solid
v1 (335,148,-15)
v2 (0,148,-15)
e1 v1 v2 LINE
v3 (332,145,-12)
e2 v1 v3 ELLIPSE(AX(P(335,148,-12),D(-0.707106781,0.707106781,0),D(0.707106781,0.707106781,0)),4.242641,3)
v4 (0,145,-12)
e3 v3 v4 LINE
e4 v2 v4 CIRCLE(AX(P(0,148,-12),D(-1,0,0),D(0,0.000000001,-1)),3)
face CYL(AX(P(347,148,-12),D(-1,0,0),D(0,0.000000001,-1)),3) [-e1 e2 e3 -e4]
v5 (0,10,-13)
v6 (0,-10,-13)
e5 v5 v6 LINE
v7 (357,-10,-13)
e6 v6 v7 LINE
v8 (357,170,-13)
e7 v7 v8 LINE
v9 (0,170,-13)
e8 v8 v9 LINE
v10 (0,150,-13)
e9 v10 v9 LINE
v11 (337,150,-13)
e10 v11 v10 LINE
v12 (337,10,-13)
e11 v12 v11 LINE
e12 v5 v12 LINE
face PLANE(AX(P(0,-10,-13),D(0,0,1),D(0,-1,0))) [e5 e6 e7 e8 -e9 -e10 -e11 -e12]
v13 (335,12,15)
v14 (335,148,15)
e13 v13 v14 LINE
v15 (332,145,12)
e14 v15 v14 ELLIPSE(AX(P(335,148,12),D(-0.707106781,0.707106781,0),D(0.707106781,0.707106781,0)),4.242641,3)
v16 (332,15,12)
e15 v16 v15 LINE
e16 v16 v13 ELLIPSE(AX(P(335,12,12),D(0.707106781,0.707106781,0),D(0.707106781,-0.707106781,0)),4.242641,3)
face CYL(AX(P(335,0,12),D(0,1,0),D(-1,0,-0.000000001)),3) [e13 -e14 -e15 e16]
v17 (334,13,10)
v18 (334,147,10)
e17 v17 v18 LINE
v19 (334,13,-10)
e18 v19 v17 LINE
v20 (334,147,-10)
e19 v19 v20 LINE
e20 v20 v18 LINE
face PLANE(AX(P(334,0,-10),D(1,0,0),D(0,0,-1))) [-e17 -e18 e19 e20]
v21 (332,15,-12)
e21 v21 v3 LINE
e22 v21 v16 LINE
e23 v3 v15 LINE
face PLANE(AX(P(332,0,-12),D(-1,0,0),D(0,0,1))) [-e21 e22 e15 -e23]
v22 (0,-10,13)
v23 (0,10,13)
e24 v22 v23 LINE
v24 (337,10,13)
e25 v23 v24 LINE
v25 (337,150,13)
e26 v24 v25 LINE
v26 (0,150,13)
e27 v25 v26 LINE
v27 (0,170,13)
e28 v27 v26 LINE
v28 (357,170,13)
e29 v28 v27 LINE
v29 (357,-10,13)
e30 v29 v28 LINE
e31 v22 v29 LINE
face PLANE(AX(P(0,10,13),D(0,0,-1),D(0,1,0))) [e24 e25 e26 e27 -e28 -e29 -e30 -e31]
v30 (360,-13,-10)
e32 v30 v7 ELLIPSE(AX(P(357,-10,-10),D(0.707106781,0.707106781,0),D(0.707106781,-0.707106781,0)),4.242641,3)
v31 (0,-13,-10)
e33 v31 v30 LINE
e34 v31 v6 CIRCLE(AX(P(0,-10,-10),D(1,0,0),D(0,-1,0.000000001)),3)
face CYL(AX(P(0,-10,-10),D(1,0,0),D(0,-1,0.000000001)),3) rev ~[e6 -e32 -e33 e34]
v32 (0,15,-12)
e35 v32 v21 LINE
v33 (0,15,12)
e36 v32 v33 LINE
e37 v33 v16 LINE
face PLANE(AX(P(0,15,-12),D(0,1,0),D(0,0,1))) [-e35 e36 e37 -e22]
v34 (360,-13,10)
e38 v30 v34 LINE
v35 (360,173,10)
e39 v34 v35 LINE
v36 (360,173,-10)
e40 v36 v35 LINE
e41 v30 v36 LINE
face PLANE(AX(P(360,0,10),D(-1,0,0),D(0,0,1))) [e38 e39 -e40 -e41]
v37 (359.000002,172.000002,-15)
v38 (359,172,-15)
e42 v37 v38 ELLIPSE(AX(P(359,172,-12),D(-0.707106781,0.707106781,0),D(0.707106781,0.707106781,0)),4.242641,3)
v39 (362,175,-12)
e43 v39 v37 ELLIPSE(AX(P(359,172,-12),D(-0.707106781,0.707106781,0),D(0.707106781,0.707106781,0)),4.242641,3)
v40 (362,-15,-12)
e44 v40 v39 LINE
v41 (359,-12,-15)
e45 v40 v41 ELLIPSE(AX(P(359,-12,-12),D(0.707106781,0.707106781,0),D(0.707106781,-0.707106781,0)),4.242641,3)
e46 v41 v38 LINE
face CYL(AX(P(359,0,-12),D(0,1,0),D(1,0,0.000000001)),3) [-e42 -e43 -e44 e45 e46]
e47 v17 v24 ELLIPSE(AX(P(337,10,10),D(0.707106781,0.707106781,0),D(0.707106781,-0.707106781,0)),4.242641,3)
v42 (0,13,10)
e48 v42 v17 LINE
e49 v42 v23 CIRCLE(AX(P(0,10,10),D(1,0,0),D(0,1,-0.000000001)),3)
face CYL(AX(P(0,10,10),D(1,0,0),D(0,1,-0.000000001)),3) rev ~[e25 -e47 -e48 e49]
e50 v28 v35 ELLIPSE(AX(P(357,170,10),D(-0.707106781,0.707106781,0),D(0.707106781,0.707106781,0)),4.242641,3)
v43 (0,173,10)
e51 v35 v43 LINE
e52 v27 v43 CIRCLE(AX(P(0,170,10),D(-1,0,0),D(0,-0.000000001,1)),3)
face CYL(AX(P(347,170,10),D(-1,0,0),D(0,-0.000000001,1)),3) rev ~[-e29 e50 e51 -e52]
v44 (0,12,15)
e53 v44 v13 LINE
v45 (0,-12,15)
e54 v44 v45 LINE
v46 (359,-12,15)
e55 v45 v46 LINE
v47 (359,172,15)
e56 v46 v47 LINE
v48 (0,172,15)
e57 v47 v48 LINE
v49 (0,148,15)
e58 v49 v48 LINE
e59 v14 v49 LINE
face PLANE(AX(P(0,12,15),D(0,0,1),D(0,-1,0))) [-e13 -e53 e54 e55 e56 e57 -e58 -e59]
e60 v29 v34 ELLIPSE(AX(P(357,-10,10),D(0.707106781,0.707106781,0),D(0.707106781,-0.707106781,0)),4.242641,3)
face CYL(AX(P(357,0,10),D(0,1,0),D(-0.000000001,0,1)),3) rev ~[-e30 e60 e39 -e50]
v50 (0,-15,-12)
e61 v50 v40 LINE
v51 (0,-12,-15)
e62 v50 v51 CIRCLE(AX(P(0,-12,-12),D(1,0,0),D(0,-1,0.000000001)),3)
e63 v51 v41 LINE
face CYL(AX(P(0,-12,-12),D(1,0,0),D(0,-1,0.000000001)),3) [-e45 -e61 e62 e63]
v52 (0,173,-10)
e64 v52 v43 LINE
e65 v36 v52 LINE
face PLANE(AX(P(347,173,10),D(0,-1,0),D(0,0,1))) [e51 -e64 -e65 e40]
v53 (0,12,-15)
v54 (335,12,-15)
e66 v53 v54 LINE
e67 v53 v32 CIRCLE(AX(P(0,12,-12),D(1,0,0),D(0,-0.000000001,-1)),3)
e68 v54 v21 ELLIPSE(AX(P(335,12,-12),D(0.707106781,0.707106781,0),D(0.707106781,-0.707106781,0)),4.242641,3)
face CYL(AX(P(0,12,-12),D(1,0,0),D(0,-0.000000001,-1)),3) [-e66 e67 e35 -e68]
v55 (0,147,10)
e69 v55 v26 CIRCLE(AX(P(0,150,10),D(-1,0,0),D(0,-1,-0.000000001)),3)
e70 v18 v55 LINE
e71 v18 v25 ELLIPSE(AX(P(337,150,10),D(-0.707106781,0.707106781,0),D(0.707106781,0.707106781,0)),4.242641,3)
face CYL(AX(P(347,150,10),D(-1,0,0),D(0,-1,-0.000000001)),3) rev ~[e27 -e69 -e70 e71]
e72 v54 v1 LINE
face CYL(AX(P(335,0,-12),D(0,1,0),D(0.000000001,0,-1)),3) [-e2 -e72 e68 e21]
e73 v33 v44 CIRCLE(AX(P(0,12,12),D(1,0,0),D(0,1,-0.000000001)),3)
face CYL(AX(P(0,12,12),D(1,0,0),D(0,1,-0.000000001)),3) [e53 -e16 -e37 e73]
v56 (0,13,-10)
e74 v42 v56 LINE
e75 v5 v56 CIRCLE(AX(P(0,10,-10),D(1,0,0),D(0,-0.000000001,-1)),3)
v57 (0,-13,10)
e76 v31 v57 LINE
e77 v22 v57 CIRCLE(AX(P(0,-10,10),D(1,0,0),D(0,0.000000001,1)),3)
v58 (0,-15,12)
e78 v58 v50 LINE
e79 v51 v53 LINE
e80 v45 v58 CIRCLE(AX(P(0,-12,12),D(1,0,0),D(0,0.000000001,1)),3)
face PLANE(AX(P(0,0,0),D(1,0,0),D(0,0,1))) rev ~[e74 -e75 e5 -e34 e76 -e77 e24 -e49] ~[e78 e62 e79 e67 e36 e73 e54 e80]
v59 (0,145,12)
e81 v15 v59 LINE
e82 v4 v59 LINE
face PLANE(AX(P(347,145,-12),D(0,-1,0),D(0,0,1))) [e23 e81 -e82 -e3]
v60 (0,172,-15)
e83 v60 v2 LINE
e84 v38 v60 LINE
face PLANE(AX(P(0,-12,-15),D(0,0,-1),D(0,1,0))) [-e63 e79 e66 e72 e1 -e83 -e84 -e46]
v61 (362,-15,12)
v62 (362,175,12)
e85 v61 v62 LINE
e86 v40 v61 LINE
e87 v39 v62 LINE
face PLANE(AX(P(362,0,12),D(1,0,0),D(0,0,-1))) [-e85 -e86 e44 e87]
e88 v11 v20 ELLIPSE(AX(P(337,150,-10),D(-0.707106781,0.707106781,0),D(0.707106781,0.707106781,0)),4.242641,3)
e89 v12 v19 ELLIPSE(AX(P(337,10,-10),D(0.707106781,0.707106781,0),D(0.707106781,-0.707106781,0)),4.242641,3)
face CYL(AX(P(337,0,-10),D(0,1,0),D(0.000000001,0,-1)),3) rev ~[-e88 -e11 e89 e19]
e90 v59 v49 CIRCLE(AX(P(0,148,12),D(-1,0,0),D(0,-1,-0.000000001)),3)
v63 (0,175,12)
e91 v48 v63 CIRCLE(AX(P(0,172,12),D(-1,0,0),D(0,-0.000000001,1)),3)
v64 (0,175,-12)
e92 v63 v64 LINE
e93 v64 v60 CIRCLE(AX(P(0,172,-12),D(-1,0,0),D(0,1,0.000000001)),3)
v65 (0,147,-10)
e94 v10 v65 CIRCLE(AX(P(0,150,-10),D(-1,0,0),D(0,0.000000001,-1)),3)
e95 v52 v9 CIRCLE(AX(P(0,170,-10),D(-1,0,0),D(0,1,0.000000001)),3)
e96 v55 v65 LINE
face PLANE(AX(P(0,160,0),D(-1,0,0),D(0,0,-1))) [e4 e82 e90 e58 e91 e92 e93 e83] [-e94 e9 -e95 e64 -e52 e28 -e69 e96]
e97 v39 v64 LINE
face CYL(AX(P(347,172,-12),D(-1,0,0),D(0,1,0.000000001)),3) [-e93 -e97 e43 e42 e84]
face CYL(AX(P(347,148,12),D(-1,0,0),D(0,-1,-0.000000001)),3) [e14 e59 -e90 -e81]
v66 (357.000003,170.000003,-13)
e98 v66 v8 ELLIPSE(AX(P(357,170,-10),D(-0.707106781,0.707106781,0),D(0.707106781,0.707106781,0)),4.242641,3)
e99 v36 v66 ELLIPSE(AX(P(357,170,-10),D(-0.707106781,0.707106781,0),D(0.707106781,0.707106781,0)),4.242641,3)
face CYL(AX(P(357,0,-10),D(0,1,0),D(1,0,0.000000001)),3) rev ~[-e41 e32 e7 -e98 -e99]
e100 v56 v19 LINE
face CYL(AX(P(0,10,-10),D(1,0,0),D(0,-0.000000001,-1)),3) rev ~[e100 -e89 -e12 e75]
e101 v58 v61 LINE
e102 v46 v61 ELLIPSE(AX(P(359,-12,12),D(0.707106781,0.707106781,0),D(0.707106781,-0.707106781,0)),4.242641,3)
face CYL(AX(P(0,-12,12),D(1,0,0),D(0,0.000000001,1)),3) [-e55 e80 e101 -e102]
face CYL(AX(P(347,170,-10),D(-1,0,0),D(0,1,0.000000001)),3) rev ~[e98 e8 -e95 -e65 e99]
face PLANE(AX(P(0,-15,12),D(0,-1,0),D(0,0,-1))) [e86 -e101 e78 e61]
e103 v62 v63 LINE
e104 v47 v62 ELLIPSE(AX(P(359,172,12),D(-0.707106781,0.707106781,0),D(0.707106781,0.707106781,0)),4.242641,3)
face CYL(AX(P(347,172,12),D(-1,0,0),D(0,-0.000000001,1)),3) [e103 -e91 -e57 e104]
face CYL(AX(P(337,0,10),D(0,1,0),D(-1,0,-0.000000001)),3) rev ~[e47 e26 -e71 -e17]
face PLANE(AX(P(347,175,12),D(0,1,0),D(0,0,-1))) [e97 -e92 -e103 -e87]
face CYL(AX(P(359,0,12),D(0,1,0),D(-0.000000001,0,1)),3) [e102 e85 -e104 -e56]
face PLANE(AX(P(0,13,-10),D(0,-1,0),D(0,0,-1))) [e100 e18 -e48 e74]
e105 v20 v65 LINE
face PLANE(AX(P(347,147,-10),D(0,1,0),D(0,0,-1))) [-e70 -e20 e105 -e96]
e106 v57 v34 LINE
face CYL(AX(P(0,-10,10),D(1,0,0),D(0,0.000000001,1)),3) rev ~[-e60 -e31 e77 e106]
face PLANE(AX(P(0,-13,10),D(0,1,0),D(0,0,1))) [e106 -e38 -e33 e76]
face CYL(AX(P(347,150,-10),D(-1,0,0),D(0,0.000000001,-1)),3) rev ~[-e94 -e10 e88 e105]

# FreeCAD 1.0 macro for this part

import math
import FreeCAD as App
import Part
import Sketcher
Q = App.Units.Quantity

doc = App.newDocument("Part")
body = doc.addObject("PartDesign::Body", "Body")

# Sketch on YZ plane
sketch1 = body.newObject("Sketcher::SketchObject", "Sketch")
sketch1.AttachmentSupport = (doc.getObject("YZ_Plane"), [""])
sketch1.MapMode = "FlatFace"
sketch1.addGeometry([
    Part.LineSegment(App.Vector(-15, 12, 0), App.Vector(-15, -12, 0)),  # 0
    Part.ArcOfCircle(Part.Circle(App.Vector(-12, -12, 0), App.Vector(0, 0, 1), 3), math.radians(180), math.radians(270)),  # 1
    Part.LineSegment(App.Vector(-12, -15, 0), App.Vector(12, -15, 0)),  # 2
    Part.ArcOfCircle(Part.Circle(App.Vector(12, -12, 0), App.Vector(0, 0, 1), 3), math.radians(-90), math.radians(0)),  # 3
    Part.LineSegment(App.Vector(15, -12, 0), App.Vector(15, 12, 0)),  # 4
    Part.ArcOfCircle(Part.Circle(App.Vector(12, 12, 0), App.Vector(0, 0, 1), 3), math.radians(0), math.radians(90)),  # 5
    Part.LineSegment(App.Vector(12, 15, 0), App.Vector(-12, 15, 0)),  # 6
    Part.ArcOfCircle(Part.Circle(App.Vector(-12, 12, 0), App.Vector(0, 0, 1), 3), math.radians(90), math.radians(180)),  # 7
    Part.LineSegment(App.Vector(-13, -10, 0), App.Vector(-13, 10, 0)),  # 8
    Part.ArcOfCircle(Part.Circle(App.Vector(-10, 10, 0), App.Vector(0, 0, 1), 3), math.radians(90), math.radians(180)),  # 9
    Part.LineSegment(App.Vector(-10, 13, 0), App.Vector(10, 13, 0)),  # 10
    Part.ArcOfCircle(Part.Circle(App.Vector(10, 10, 0), App.Vector(0, 0, 1), 3), math.radians(0), math.radians(90)),  # 11
    Part.LineSegment(App.Vector(13, 10, 0), App.Vector(13, -10, 0)),  # 12
    Part.ArcOfCircle(Part.Circle(App.Vector(10, -10, 0), App.Vector(0, 0, 1), 3), math.radians(-90), math.radians(0)),  # 13
    Part.LineSegment(App.Vector(10, -13, 0), App.Vector(-10, -13, 0)),  # 14
    Part.ArcOfCircle(Part.Circle(App.Vector(-10, -10, 0), App.Vector(0, 0, 1), 3), math.radians(180), math.radians(270)),  # 15
], False)
sketch1.addConstraint([
    Sketcher.Constraint("Tangent", 0, 2, 1, 1),
    Sketcher.Constraint("Tangent", 1, 2, 2, 1),
    Sketcher.Constraint("Tangent", 2, 2, 3, 1),
    Sketcher.Constraint("Tangent", 3, 2, 4, 1),
    Sketcher.Constraint("Tangent", 4, 2, 5, 1),
    Sketcher.Constraint("Tangent", 5, 2, 6, 1),
    Sketcher.Constraint("Tangent", 6, 2, 7, 1),
    Sketcher.Constraint("Tangent", 7, 2, 0, 1),
    Sketcher.Constraint("Tangent", 8, 2, 9, 2),
    Sketcher.Constraint("Tangent", 9, 1, 10, 1),
    Sketcher.Constraint("Tangent", 10, 2, 11, 2),
    Sketcher.Constraint("Tangent", 11, 1, 12, 1),
    Sketcher.Constraint("Tangent", 12, 2, 13, 2),
    Sketcher.Constraint("Tangent", 13, 1, 14, 1),
    Sketcher.Constraint("Tangent", 14, 2, 15, 2),
    Sketcher.Constraint("Tangent", 15, 1, 8, 1),
    Sketcher.Constraint("Vertical", 0),
    Sketcher.Constraint("Horizontal", 2),
    Sketcher.Constraint("Vertical", 4),
    Sketcher.Constraint("Horizontal", 6),
    Sketcher.Constraint("Vertical", 8),
    Sketcher.Constraint("Horizontal", 10),
    Sketcher.Constraint("Vertical", 12),
    Sketcher.Constraint("Horizontal", 14),
    Sketcher.Constraint("Equal", 1, 3),
    Sketcher.Constraint("Equal", 3, 5),
    Sketcher.Constraint("Equal", 5, 7),
    Sketcher.Constraint("Equal", 7, 9),
    Sketcher.Constraint("Equal", 9, 11),
    Sketcher.Constraint("Equal", 11, 13),
    Sketcher.Constraint("Equal", 13, 15),
    Sketcher.Constraint("Symmetric", 1, 3, 5, 3, -1, 1),
    Sketcher.Constraint("Symmetric", 9, 3, 13, 3, -1, 1),
    Sketcher.Constraint("Equal", 6, 0),
    Sketcher.Constraint("Equal", 14, 8),
    Sketcher.Constraint("Radius", 1, Q("3 mm")),
    Sketcher.Constraint("DistanceX", 2, 1, 2, 2, Q("24 mm")),
    Sketcher.Constraint("DistanceX", 10, 1, 10, 2, Q("20 mm")),
])

# Sketch on XY plane
sketch2 = body.newObject("Sketcher::SketchObject", "Sketch001")
sketch2.AttachmentSupport = (doc.getObject("XY_Plane"), [""])
sketch2.MapMode = "FlatFace"
sketch2.addGeometry([
    Part.LineSegment(App.Vector(0, 0, 0), App.Vector(347, 0, 0)),
    Part.LineSegment(App.Vector(347, 0, 0), App.Vector(347, 160, 0)),
    Part.LineSegment(App.Vector(347, 160, 0), App.Vector(0, 160, 0)),
], False)
sketch2.addConstraint([
    Sketcher.Constraint("Coincident", 0, 2, 1, 1),
    Sketcher.Constraint("Coincident", 1, 2, 2, 1),
    Sketcher.Constraint("Horizontal", 0),
    Sketcher.Constraint("Vertical", 1),
    Sketcher.Constraint("Horizontal", 2),
    Sketcher.Constraint("Coincident", 0, 1, -1, 1),
    Sketcher.Constraint("PointOnObject", 2, 2, -2),
    Sketcher.Constraint("DistanceX", 0, 1, 0, 2, Q("347 mm")),
    Sketcher.Constraint("DistanceY", 1, 1, 1, 2, Q("160 mm")),
])
doc.recompute()

additivepipe = body.newObject("PartDesign::AdditivePipe", "AdditivePipe")
additivepipe.Profile = sketch1
additivepipe.Spine = (sketch2, ["Edge1", "Edge2", "Edge3"])
additivepipe.Transition = "Right corner"

doc.recompute()
